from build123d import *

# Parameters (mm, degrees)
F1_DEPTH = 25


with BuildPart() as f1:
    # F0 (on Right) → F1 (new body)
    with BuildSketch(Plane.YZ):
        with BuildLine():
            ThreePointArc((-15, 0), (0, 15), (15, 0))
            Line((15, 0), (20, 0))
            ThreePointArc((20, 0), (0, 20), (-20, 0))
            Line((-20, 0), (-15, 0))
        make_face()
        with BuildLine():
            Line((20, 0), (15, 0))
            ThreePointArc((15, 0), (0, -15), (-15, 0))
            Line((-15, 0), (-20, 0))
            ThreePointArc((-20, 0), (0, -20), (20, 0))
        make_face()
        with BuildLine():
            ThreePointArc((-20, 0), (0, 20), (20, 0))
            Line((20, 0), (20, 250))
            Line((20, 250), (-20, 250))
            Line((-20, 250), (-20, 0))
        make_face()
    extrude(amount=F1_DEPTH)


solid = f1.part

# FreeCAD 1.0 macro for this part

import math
import FreeCAD as App
import Part
import Sketcher
from FreeCAD import Vector

doc = App.newDocument("Part")
body = doc.addObject("PartDesign::Body", "Body")

# Sketch on YZ plane
sketch1 = body.newObject("Sketcher::SketchObject", "Sketch")
sketch1.AttachmentSupport = (doc.getObject("YZ_Plane"), [""])
sketch1.MapMode = "FlatFace"
sketch1.addGeometry([
    Part.ArcOfCircle(Part.Circle(Vector(0, 0, 0), Vector(0, 0, 1), 20), math.radians(180), math.radians(360)),  # 0
    Part.LineSegment(Vector(20, 0, 0), Vector(20, 250, 0)),  # 1
    Part.LineSegment(Vector(20, 250, 0), Vector(-20, 250, 0)),  # 2
    Part.LineSegment(Vector(-20, 250, 0), Vector(-20, 0, 0)),  # 3
    Part.Circle(Vector(0, 0, 0), Vector(0, 0, 1), 15),  # 4
], False)
sketch1.addConstraint([
    Sketcher.Constraint("Tangent", 0, 2, 1, 1),
    Sketcher.Constraint("Coincident", 1, 2, 2, 1),
    Sketcher.Constraint("Coincident", 2, 2, 3, 1),
    Sketcher.Constraint("Tangent", 3, 2, 0, 1),
    Sketcher.Constraint("Vertical", 1),
    Sketcher.Constraint("Horizontal", 2),
    Sketcher.Constraint("Vertical", 3),
    Sketcher.Constraint("Coincident", 0, 3, -1, 1),
    Sketcher.Constraint("Coincident", 4, 3, -1, 1),
    Sketcher.Constraint("Diameter", 4, 30.0),
    Sketcher.Constraint("Radius", 0, 20.0),
    Sketcher.Constraint("DistanceY", 1, 1, 1, 2, 250.0),
])
pad1 = body.newObject("PartDesign::Pad", "Pad")
pad1.Profile = sketch1
pad1.Length = 25

doc.recompute()
